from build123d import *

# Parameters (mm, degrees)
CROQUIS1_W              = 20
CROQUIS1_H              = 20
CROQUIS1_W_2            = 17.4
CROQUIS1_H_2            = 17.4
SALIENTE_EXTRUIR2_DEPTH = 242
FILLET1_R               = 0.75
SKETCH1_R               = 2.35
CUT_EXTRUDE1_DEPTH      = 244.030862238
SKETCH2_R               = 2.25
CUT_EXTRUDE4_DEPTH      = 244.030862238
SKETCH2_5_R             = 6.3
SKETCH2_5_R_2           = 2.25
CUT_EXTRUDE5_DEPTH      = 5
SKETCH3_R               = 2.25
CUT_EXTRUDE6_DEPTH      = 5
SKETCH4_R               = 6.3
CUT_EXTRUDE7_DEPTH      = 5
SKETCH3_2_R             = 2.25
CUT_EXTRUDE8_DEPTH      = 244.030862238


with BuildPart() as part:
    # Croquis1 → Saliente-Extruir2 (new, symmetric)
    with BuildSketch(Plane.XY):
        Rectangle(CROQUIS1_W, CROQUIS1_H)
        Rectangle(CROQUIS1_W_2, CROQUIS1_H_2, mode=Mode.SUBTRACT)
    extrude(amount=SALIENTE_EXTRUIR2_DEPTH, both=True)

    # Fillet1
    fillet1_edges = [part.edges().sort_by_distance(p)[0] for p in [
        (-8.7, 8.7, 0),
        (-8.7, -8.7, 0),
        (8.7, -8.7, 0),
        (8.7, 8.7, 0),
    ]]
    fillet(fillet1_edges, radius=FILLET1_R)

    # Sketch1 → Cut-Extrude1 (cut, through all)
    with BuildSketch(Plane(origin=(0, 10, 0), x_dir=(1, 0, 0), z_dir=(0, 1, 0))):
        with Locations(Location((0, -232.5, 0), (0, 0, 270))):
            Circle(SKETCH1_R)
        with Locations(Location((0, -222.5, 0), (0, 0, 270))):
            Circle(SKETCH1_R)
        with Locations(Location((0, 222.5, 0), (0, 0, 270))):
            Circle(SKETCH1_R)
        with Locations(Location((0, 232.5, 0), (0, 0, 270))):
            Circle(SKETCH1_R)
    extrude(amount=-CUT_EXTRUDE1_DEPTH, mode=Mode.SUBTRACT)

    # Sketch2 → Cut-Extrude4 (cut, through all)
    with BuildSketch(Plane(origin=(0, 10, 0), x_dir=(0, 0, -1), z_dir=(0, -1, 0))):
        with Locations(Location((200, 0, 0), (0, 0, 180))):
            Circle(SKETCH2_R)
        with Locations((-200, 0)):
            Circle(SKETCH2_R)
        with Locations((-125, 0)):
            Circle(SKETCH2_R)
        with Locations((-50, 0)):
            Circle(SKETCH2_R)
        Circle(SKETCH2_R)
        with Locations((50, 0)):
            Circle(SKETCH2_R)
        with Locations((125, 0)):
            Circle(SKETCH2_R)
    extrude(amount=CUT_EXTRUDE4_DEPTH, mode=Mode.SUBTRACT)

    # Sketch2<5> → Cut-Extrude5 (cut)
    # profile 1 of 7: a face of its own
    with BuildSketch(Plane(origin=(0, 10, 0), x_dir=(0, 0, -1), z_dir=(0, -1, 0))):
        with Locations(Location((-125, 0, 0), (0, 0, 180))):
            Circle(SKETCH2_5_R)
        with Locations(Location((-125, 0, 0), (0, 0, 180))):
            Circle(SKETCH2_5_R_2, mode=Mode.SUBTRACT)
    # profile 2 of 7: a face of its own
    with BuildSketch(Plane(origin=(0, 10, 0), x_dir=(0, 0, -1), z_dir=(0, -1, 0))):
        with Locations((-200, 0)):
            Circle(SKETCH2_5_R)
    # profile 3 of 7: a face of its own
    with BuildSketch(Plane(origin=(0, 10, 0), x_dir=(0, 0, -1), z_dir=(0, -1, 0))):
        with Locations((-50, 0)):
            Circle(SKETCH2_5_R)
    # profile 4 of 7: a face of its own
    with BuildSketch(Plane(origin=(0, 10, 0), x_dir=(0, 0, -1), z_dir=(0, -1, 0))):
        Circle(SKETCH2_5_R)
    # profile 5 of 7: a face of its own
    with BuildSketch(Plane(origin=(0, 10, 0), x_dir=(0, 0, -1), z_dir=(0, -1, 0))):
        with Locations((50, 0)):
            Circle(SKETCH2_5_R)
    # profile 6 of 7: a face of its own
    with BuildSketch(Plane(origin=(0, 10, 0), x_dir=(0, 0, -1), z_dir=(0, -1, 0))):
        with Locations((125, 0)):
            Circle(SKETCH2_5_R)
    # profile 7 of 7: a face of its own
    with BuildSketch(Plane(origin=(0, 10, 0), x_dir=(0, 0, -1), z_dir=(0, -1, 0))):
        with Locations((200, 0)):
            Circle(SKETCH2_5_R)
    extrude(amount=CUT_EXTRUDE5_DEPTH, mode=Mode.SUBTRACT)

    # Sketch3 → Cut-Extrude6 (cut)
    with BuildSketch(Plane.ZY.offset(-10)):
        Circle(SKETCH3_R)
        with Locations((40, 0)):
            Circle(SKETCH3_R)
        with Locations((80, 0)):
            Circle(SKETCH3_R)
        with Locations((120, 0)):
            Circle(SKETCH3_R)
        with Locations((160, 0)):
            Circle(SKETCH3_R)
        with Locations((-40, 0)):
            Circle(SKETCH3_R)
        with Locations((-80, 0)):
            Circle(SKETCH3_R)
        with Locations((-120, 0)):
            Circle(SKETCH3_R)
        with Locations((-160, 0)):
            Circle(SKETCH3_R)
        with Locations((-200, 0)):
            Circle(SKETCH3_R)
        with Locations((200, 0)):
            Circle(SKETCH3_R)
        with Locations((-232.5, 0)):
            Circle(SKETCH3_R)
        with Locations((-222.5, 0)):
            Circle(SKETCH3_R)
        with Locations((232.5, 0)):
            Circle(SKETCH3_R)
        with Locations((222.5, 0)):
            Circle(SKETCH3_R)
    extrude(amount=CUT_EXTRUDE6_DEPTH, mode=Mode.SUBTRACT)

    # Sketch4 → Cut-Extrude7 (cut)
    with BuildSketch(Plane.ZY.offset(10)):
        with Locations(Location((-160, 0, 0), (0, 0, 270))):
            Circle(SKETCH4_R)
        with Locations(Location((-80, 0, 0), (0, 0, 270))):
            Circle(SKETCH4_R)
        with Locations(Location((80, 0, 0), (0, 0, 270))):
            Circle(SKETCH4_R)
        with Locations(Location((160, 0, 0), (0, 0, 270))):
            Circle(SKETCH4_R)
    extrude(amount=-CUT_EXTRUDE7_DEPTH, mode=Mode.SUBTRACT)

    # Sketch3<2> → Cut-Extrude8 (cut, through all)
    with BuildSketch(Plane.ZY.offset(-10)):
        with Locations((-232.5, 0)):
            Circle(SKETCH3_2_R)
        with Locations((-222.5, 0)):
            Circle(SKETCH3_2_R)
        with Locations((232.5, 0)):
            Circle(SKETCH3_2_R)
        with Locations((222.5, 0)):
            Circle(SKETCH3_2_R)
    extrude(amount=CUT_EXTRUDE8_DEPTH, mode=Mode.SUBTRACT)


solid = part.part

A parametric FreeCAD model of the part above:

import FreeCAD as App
import Part
import Sketcher


def edges_at(feature, points):
    """Names of the edges that pass closest to the given points."""
    edges = feature.Shape.Edges
    near = lambda p: min(range(len(edges)), key=lambda i: edges[i].distToShape(Part.Vertex(*p))[0])
    return sorted({f"Edge{near(p) + 1}" for p in points})

doc = App.newDocument("Part")
body = doc.addObject("PartDesign::Body", "Body")

# Sketch on XY plane
sketch1 = doc.addObject("Sketcher::SketchObject", "Sketch")
body.addObject(sketch1)
sketch1.AttachmentSupport = (doc.XY_Plane, [""])
sketch1.MapMode = "FlatFace"
sketch1.addGeometry(Part.LineSegment(App.Vector(-10, 10, 0), App.Vector(-10, -10, 0)), False)
sketch1.addGeometry(Part.LineSegment(App.Vector(-10, -10, 0), App.Vector(10, -10, 0)), False)
sketch1.addGeometry(Part.LineSegment(App.Vector(10, -10, 0), App.Vector(10, 10, 0)), False)
sketch1.addGeometry(Part.LineSegment(App.Vector(10, 10, 0), App.Vector(-10, 10, 0)), False)
sketch1.addGeometry(Part.LineSegment(App.Vector(8.7, -8.7, 0), App.Vector(-8.7, -8.7, 0)), False)
sketch1.addGeometry(Part.LineSegment(App.Vector(-8.7, -8.7, 0), App.Vector(-8.7, 8.7, 0)), False)
sketch1.addGeometry(Part.LineSegment(App.Vector(-8.7, 8.7, 0), App.Vector(8.7, 8.7, 0)), False)
sketch1.addGeometry(Part.LineSegment(App.Vector(8.7, 8.7, 0), App.Vector(8.7, -8.7, 0)), False)
sketch1.addConstraint(Sketcher.Constraint("Coincident", 0, 2, 1, 1))
sketch1.addConstraint(Sketcher.Constraint("Coincident", 1, 2, 2, 1))
sketch1.addConstraint(Sketcher.Constraint("Coincident", 2, 2, 3, 1))
sketch1.addConstraint(Sketcher.Constraint("Coincident", 3, 2, 0, 1))
sketch1.addConstraint(Sketcher.Constraint("Coincident", 4, 2, 5, 1))
sketch1.addConstraint(Sketcher.Constraint("Coincident", 5, 2, 6, 1))
sketch1.addConstraint(Sketcher.Constraint("Coincident", 6, 2, 7, 1))
sketch1.addConstraint(Sketcher.Constraint("Coincident", 7, 2, 4, 1))
sketch1.addConstraint(Sketcher.Constraint("Vertical", 0))
sketch1.addConstraint(Sketcher.Constraint("Horizontal", 1))
sketch1.addConstraint(Sketcher.Constraint("Vertical", 2))
sketch1.addConstraint(Sketcher.Constraint("Horizontal", 3))
sketch1.addConstraint(Sketcher.Constraint("Horizontal", 4))
sketch1.addConstraint(Sketcher.Constraint("Vertical", 5))
sketch1.addConstraint(Sketcher.Constraint("Horizontal", 6))
sketch1.addConstraint(Sketcher.Constraint("Vertical", 7))
sketch1.addConstraint(Sketcher.Constraint("Symmetric", 0, 2, 2, 2, -1, 1))
sketch1.addConstraint(Sketcher.Constraint("Symmetric", 4, 2, 6, 2, -1, 1))
sketch1.addConstraint(Sketcher.Constraint("Equal", 3, 0))
sketch1.addConstraint(Sketcher.Constraint("Equal", 6, 5))
sketch1.addConstraint(Sketcher.Constraint("DistanceX", 1, 1, 1, 2, 20.0))
sketch1.addConstraint(Sketcher.Constraint("DistanceX", 4, 2, 4, 1, 17.4))
pad1 = doc.addObject("PartDesign::Pad", "Pad")
body.addObject(pad1)
pad1.Profile = sketch1
pad1.Length = 484
pad1.Midplane = True
doc.recompute()

fillet = doc.addObject("PartDesign::Fillet", "Fillet")
body.addObject(fillet)
fillet.Base = (pad1, edges_at(pad1, [
    (-8.7, 8.7, 0),
    (-8.7, -8.7, 0),
    (8.7, -8.7, 0),
    (8.7, 8.7, 0),
]))
fillet.Radius = 0.75

# Sketch on XZ plane
sketch2 = doc.addObject("Sketcher::SketchObject", "Sketch001")
body.addObject(sketch2)
sketch2.AttachmentSupport = (doc.XZ_Plane, [""])
sketch2.MapMode = "FlatFace"
sketch2.AttachmentOffset = App.Placement(App.Vector(0, 0, -10), App.Rotation())
sketch2.addGeometry(Part.Circle(App.Vector(0, 232.5, 0), App.Vector(0, 0, 1), 2.35), False)
sketch2.addGeometry(Part.Circle(App.Vector(0, 222.5, 0), App.Vector(0, 0, 1), 2.35), False)
sketch2.addGeometry(Part.Circle(App.Vector(0, -222.5, 0), App.Vector(0, 0, 1), 2.35), False)
sketch2.addGeometry(Part.Circle(App.Vector(0, -232.5, 0), App.Vector(0, 0, 1), 2.35), False)
sketch2.addConstraint(Sketcher.Constraint("Equal", 0, 1))
sketch2.addConstraint(Sketcher.Constraint("Equal", 1, 2))
sketch2.addConstraint(Sketcher.Constraint("Equal", 2, 3))
sketch2.addConstraint(Sketcher.Constraint("Symmetric", 1, 3, 2, 3, -1, 1))
sketch2.addConstraint(Sketcher.Constraint("Symmetric", 0, 3, 3, 3, -1, 1))
sketch2.addConstraint(Sketcher.Constraint("PointOnObject", 0, 3, -2))
sketch2.addConstraint(Sketcher.Constraint("PointOnObject", 1, 3, -2))
sketch2.addConstraint(Sketcher.Constraint("Diameter", 0, 4.7))
sketch2.addConstraint(Sketcher.Constraint("DistanceY", 1, 3, 0, 3, 10.0))
sketch2.addConstraint(Sketcher.Constraint("DistanceY", 2, 3, 1, 3, 445.0))
pocket1 = doc.addObject("PartDesign::Pocket", "Pocket")
body.addObject(pocket1)
pocket1.Profile = sketch2
pocket1.Type = "ThroughAll"
pocket1.Reversed = True

# Sketch on XZ plane
sketch3 = doc.addObject("Sketcher::SketchObject", "Sketch002")
body.addObject(sketch3)
sketch3.AttachmentSupport = (doc.XZ_Plane, [""])
sketch3.MapMode = "FlatFace"
sketch3.AttachmentOffset = App.Placement(App.Vector(0, 0, -10), App.Rotation())
sketch3.addGeometry(Part.Circle(App.Vector(0, -200, 0), App.Vector(0, 0, 1), 2.25), False)
sketch3.addGeometry(Part.Circle(App.Vector(0, 200, 0), App.Vector(0, 0, 1), 2.25), False)
sketch3.addGeometry(Part.Circle(App.Vector(0, 125, 0), App.Vector(0, 0, 1), 2.25), False)
sketch3.addGeometry(Part.Circle(App.Vector(0, 50, 0), App.Vector(0, 0, 1), 2.25), False)
sketch3.addGeometry(Part.Circle(App.Vector(0, 0, 0), App.Vector(0, 0, 1), 2.25), False)
sketch3.addGeometry(Part.Circle(App.Vector(0, -50, 0), App.Vector(0, 0, 1), 2.25), False)
sketch3.addGeometry(Part.Circle(App.Vector(0, -125, 0), App.Vector(0, 0, 1), 2.25), False)
sketch3.addConstraint(Sketcher.Constraint("Coincident", 4, 3, -1, 1))
sketch3.addConstraint(Sketcher.Constraint("Equal", 0, 1))
sketch3.addConstraint(Sketcher.Constraint("Equal", 1, 2))
sketch3.addConstraint(Sketcher.Constraint("Equal", 2, 3))
sketch3.addConstraint(Sketcher.Constraint("Equal", 3, 4))
sketch3.addConstraint(Sketcher.Constraint("Equal", 4, 5))
sketch3.addConstraint(Sketcher.Constraint("Equal", 5, 6))
sketch3.addConstraint(Sketcher.Constraint("Symmetric", 0, 3, 1, 3, -1, 1))
sketch3.addConstraint(Sketcher.Constraint("Symmetric", 3, 3, 5, 3, -1, 1))
sketch3.addConstraint(Sketcher.Constraint("Symmetric", 2, 3, 6, 3, -1, 1))
sketch3.addConstraint(Sketcher.Constraint("PointOnObject", 0, 3, -2))
sketch3.addConstraint(Sketcher.Constraint("PointOnObject", 2, 3, -2))
sketch3.addConstraint(Sketcher.Constraint("PointOnObject", 3, 3, -2))
sketch3.addConstraint(Sketcher.Constraint("Diameter", 0, 4.5))
sketch3.addConstraint(Sketcher.Constraint("DistanceY", 0, 3, -1, 1, 200.0))
sketch3.addConstraint(Sketcher.Constraint("DistanceY", -1, 1, 2, 3, 125.0))
sketch3.addConstraint(Sketcher.Constraint("DistanceY", -1, 1, 3, 3, 50.0))
pocket2 = doc.addObject("PartDesign::Pocket", "Pocket001")
body.addObject(pocket2)
pocket2.Profile = sketch3
pocket2.Type = "ThroughAll"
pocket2.Reversed = True

# Sketch on XZ plane
sketch4 = doc.addObject("Sketcher::SketchObject", "Sketch003")
body.addObject(sketch4)
sketch4.AttachmentSupport = (doc.XZ_Plane, [""])
sketch4.MapMode = "FlatFace"
sketch4.AttachmentOffset = App.Placement(App.Vector(0, 0, -10), App.Rotation())
sketch4.addGeometry(Part.Circle(App.Vector(0, 125, 0), App.Vector(0, 0, 1), 6.3), False)
sketch4.addGeometry(Part.Circle(App.Vector(0, 125, 0), App.Vector(0, 0, 1), 2.25), False)
sketch4.addGeometry(Part.Circle(App.Vector(0, 200, 0), App.Vector(0, 0, 1), 6.3), False)
sketch4.addGeometry(Part.Circle(App.Vector(0, 50, 0), App.Vector(0, 0, 1), 6.3), False)
sketch4.addGeometry(Part.Circle(App.Vector(0, 0, 0), App.Vector(0, 0, 1), 6.3), False)
sketch4.addGeometry(Part.Circle(App.Vector(0, -50, 0), App.Vector(0, 0, 1), 6.3), False)
sketch4.addGeometry(Part.Circle(App.Vector(0, -125, 0), App.Vector(0, 0, 1), 6.3), False)
sketch4.addGeometry(Part.Circle(App.Vector(0, -200, 0), App.Vector(0, 0, 1), 6.3), False)
sketch4.addConstraint(Sketcher.Constraint("Coincident", 4, 3, -1, 1))
sketch4.addConstraint(Sketcher.Constraint("Coincident", 1, 3, 0, 3))
sketch4.addConstraint(Sketcher.Constraint("Equal", 0, 2))
sketch4.addConstraint(Sketcher.Constraint("Equal", 2, 3))
sketch4.addConstraint(Sketcher.Constraint("Equal", 3, 4))
sketch4.addConstraint(Sketcher.Constraint("Equal", 4, 5))
sketch4.addConstraint(Sketcher.Constraint("Equal", 5, 6))
sketch4.addConstraint(Sketcher.Constraint("Equal", 6, 7))
sketch4.addConstraint(Sketcher.Constraint("Symmetric", 3, 3, 5, 3, -1, 1))
sketch4.addConstraint(Sketcher.Constraint("Symmetric", 0, 3, 6, 3, -1, 1))
sketch4.addConstraint(Sketcher.Constraint("Symmetric", 2, 3, 7, 3, -1, 1))
sketch4.addConstraint(Sketcher.Constraint("PointOnObject", 0, 3, -2))
sketch4.addConstraint(Sketcher.Constraint("PointOnObject", 2, 3, -2))
sketch4.addConstraint(Sketcher.Constraint("PointOnObject", 3, 3, -2))
sketch4.addConstraint(Sketcher.Constraint("Diameter", 0, 12.6))
sketch4.addConstraint(Sketcher.Constraint("Diameter", 1, 4.5))
sketch4.addConstraint(Sketcher.Constraint("DistanceY", -1, 1, 0, 3, 125.0))
sketch4.addConstraint(Sketcher.Constraint("DistanceY", -1, 1, 2, 3, 200.0))
sketch4.addConstraint(Sketcher.Constraint("DistanceY", -1, 1, 3, 3, 50.0))
pocket3 = doc.addObject("PartDesign::Pocket", "Pocket002")
body.addObject(pocket3)
pocket3.Profile = sketch4
pocket3.Length = 5
pocket3.Reversed = True

# Sketch on YZ plane
sketch5 = doc.addObject("Sketcher::SketchObject", "Sketch004")
body.addObject(sketch5)
sketch5.AttachmentSupport = (doc.YZ_Plane, [""])
sketch5.MapMode = "FlatFace"
sketch5.AttachmentOffset = App.Placement(App.Vector(0, 0, 10), App.Rotation())
sketch5.addGeometry(Part.Circle(App.Vector(0, 0, 0), App.Vector(0, 0, 1), 2.25), False)
sketch5.addGeometry(Part.Circle(App.Vector(0, 40, 0), App.Vector(0, 0, 1), 2.25), False)
sketch5.addGeometry(Part.Circle(App.Vector(0, 80, 0), App.Vector(0, 0, 1), 2.25), False)
sketch5.addGeometry(Part.Circle(App.Vector(0, 120, 0), App.Vector(0, 0, 1), 2.25), False)
sketch5.addGeometry(Part.Circle(App.Vector(0, 160, 0), App.Vector(0, 0, 1), 2.25), False)
sketch5.addGeometry(Part.Circle(App.Vector(0, -40, 0), App.Vector(0, 0, 1), 2.25), False)
sketch5.addGeometry(Part.Circle(App.Vector(0, -80, 0), App.Vector(0, 0, 1), 2.25), False)
sketch5.addGeometry(Part.Circle(App.Vector(0, -120, 0), App.Vector(0, 0, 1), 2.25), False)
sketch5.addGeometry(Part.Circle(App.Vector(0, -160, 0), App.Vector(0, 0, 1), 2.25), False)
sketch5.addGeometry(Part.Circle(App.Vector(0, -200, 0), App.Vector(0, 0, 1), 2.25), False)
sketch5.addGeometry(Part.Circle(App.Vector(0, 200, 0), App.Vector(0, 0, 1), 2.25), False)
sketch5.addGeometry(Part.Circle(App.Vector(0, -232.5, 0), App.Vector(0, 0, 1), 2.25), False)
sketch5.addGeometry(Part.Circle(App.Vector(0, -222.5, 0), App.Vector(0, 0, 1), 2.25), False)
sketch5.addGeometry(Part.Circle(App.Vector(0, 232.5, 0), App.Vector(0, 0, 1), 2.25), False)
sketch5.addGeometry(Part.Circle(App.Vector(0, 222.5, 0), App.Vector(0, 0, 1), 2.25), False)
sketch5.addConstraint(Sketcher.Constraint("Coincident", 0, 3, -1, 1))
sketch5.addConstraint(Sketcher.Constraint("Equal", 0, 1))
sketch5.addConstraint(Sketcher.Constraint("Equal", 1, 2))
sketch5.addConstraint(Sketcher.Constraint("Equal", 2, 3))
sketch5.addConstraint(Sketcher.Constraint("Equal", 3, 4))
sketch5.addConstraint(Sketcher.Constraint("Equal", 4, 5))
sketch5.addConstraint(Sketcher.Constraint("Equal", 5, 6))
sketch5.addConstraint(Sketcher.Constraint("Equal", 6, 7))
sketch5.addConstraint(Sketcher.Constraint("Equal", 7, 8))
sketch5.addConstraint(Sketcher.Constraint("Equal", 8, 9))
sketch5.addConstraint(Sketcher.Constraint("Equal", 9, 10))
sketch5.addConstraint(Sketcher.Constraint("Equal", 10, 11))
sketch5.addConstraint(Sketcher.Constraint("Equal", 11, 12))
sketch5.addConstraint(Sketcher.Constraint("Equal", 12, 13))
sketch5.addConstraint(Sketcher.Constraint("Equal", 13, 14))
sketch5.addConstraint(Sketcher.Constraint("Symmetric", 1, 3, 5, 3, -1, 1))
sketch5.addConstraint(Sketcher.Constraint("Symmetric", 2, 3, 6, 3, -1, 1))
sketch5.addConstraint(Sketcher.Constraint("Symmetric", 3, 3, 7, 3, -1, 1))
sketch5.addConstraint(Sketcher.Constraint("Symmetric", 4, 3, 8, 3, -1, 1))
sketch5.addConstraint(Sketcher.Constraint("Symmetric", 9, 3, 10, 3, -1, 1))
sketch5.addConstraint(Sketcher.Constraint("Symmetric", 11, 3, 13, 3, -1, 1))
sketch5.addConstraint(Sketcher.Constraint("Symmetric", 12, 3, 14, 3, -1, 1))
sketch5.addConstraint(Sketcher.Constraint("PointOnObject", 1, 3, -2))
sketch5.addConstraint(Sketcher.Constraint("PointOnObject", 2, 3, -2))
sketch5.addConstraint(Sketcher.Constraint("PointOnObject", 3, 3, -2))
sketch5.addConstraint(Sketcher.Constraint("PointOnObject", 4, 3, -2))
sketch5.addConstraint(Sketcher.Constraint("PointOnObject", 9, 3, -2))
sketch5.addConstraint(Sketcher.Constraint("PointOnObject", 11, 3, -2))
sketch5.addConstraint(Sketcher.Constraint("PointOnObject", 12, 3, -2))
sketch5.addConstraint(Sketcher.Constraint("Diameter", 0, 4.5))
sketch5.addConstraint(Sketcher.Constraint("DistanceY", -1, 1, 1, 3, 40.0))
sketch5.addConstraint(Sketcher.Constraint("DistanceY", -1, 1, 2, 3, 80.0))
sketch5.addConstraint(Sketcher.Constraint("DistanceY", -1, 1, 3, 3, 120.0))
sketch5.addConstraint(Sketcher.Constraint("DistanceY", -1, 1, 4, 3, 160.0))
sketch5.addConstraint(Sketcher.Constraint("DistanceY", 9, 3, -1, 1, 200.0))
sketch5.addConstraint(Sketcher.Constraint("DistanceY", 11, 3, 12, 3, 10.0))
sketch5.addConstraint(Sketcher.Constraint("DistanceY", 11, 3, -1, 1, 232.5))
pocket4 = doc.addObject("PartDesign::Pocket", "Pocket003")
body.addObject(pocket4)
pocket4.Profile = sketch5
pocket4.Length = 5

# Sketch on YZ plane
sketch6 = doc.addObject("Sketcher::SketchObject", "Sketch005")
body.addObject(sketch6)
sketch6.AttachmentSupport = (doc.YZ_Plane, [""])
sketch6.MapMode = "FlatFace"
sketch6.AttachmentOffset = App.Placement(App.Vector(0, 0, -10), App.Rotation())
sketch6.addGeometry(Part.Circle(App.Vector(0, -160, 0), App.Vector(0, 0, 1), 6.3), False)
sketch6.addGeometry(Part.Circle(App.Vector(0, -80, 0), App.Vector(0, 0, 1), 6.3), False)
sketch6.addGeometry(Part.Circle(App.Vector(0, 80, 0), App.Vector(0, 0, 1), 6.3), False)
sketch6.addGeometry(Part.Circle(App.Vector(0, 160, 0), App.Vector(0, 0, 1), 6.3), False)
sketch6.addConstraint(Sketcher.Constraint("Equal", 0, 1))
sketch6.addConstraint(Sketcher.Constraint("Equal", 1, 2))
sketch6.addConstraint(Sketcher.Constraint("Equal", 2, 3))
sketch6.addConstraint(Sketcher.Constraint("Symmetric", 1, 3, 2, 3, -1, 1))
sketch6.addConstraint(Sketcher.Constraint("Symmetric", 0, 3, 3, 3, -1, 1))
sketch6.addConstraint(Sketcher.Constraint("PointOnObject", 0, 3, -2))
sketch6.addConstraint(Sketcher.Constraint("PointOnObject", 1, 3, -2))
sketch6.addConstraint(Sketcher.Constraint("Diameter", 0, 12.6))
sketch6.addConstraint(Sketcher.Constraint("DistanceY", 0, 3, -1, 1, 160.0))
sketch6.addConstraint(Sketcher.Constraint("DistanceY", 1, 3, -1, 1, 80.0))
pocket5 = doc.addObject("PartDesign::Pocket", "Pocket004")
body.addObject(pocket5)
pocket5.Profile = sketch6
pocket5.Length = 5
pocket5.Reversed = True

# Sketch on YZ plane
sketch7 = doc.addObject("Sketcher::SketchObject", "Sketch006")
body.addObject(sketch7)
sketch7.AttachmentSupport = (doc.YZ_Plane, [""])
sketch7.MapMode = "FlatFace"
sketch7.AttachmentOffset = App.Placement(App.Vector(0, 0, 10), App.Rotation())
sketch7.addGeometry(Part.Circle(App.Vector(0, -232.5, 0), App.Vector(0, 0, 1), 2.25), False)
sketch7.addGeometry(Part.Circle(App.Vector(0, -222.5, 0), App.Vector(0, 0, 1), 2.25), False)
sketch7.addGeometry(Part.Circle(App.Vector(0, 232.5, 0), App.Vector(0, 0, 1), 2.25), False)
sketch7.addGeometry(Part.Circle(App.Vector(0, 222.5, 0), App.Vector(0, 0, 1), 2.25), False)
sketch7.addConstraint(Sketcher.Constraint("Equal", 0, 1))
sketch7.addConstraint(Sketcher.Constraint("Equal", 1, 2))
sketch7.addConstraint(Sketcher.Constraint("Equal", 2, 3))
sketch7.addConstraint(Sketcher.Constraint("Symmetric", 0, 3, 2, 3, -1, 1))
sketch7.addConstraint(Sketcher.Constraint("Symmetric", 1, 3, 3, 3, -1, 1))
sketch7.addConstraint(Sketcher.Constraint("PointOnObject", 0, 3, -2))
sketch7.addConstraint(Sketcher.Constraint("PointOnObject", 1, 3, -2))
sketch7.addConstraint(Sketcher.Constraint("Diameter", 0, 4.5))
sketch7.addConstraint(Sketcher.Constraint("DistanceY", 0, 3, 1, 3, 10.0))
sketch7.addConstraint(Sketcher.Constraint("DistanceY", 1, 3, 2, 3, 455.0))
pocket6 = doc.addObject("PartDesign::Pocket", "Pocket005")
body.addObject(pocket6)
pocket6.Profile = sketch7
pocket6.Type = "ThroughAll"

doc.recompute()
